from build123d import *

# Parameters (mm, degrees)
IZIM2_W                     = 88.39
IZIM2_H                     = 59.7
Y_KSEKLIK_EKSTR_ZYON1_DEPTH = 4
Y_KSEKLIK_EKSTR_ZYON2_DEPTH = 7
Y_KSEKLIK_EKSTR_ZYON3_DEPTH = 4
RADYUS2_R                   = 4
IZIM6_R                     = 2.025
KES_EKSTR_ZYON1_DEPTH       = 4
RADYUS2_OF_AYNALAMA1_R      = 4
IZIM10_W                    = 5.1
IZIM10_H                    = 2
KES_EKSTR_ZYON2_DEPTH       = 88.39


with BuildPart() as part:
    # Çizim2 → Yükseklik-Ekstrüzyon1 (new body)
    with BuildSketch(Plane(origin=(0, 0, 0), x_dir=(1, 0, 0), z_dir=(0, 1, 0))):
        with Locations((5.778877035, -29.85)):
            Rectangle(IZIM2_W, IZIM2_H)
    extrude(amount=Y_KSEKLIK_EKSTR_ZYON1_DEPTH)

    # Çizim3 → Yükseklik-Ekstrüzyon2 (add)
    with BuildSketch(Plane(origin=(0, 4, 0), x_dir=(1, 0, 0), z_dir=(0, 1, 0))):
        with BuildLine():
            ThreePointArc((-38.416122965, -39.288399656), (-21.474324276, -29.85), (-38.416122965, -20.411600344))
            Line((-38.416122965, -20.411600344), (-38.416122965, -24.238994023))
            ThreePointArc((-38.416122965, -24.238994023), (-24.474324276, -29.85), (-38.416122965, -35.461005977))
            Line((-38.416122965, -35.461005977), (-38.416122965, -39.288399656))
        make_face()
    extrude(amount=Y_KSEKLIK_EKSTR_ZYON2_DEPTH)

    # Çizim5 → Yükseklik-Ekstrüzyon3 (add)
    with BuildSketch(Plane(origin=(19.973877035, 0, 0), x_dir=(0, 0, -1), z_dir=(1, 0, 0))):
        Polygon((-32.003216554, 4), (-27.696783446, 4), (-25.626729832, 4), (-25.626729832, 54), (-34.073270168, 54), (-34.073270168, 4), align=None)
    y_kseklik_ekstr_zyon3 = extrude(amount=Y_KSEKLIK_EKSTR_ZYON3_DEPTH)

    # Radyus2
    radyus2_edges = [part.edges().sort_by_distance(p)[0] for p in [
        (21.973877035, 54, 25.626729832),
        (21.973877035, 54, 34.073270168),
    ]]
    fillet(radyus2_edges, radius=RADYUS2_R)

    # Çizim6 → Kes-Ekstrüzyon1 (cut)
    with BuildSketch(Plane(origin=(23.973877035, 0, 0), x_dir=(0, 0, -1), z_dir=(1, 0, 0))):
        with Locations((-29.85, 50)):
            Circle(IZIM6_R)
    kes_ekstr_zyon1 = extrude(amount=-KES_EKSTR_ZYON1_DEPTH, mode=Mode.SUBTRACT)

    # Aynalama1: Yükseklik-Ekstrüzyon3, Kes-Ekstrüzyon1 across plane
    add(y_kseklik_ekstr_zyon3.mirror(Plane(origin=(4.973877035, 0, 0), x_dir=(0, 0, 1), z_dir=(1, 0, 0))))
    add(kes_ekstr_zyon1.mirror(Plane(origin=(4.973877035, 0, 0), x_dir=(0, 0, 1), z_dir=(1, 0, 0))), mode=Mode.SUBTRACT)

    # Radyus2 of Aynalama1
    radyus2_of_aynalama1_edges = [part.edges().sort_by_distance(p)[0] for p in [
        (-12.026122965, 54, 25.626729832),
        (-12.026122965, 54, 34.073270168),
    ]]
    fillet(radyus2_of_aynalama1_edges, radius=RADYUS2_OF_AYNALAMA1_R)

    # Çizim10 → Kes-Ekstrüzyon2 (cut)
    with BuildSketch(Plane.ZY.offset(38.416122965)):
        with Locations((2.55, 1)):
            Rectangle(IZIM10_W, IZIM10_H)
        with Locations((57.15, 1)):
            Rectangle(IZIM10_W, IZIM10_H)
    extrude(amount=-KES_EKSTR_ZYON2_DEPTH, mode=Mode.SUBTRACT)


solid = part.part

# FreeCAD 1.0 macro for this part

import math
import FreeCAD as App
import Part
import Sketcher

V = App.Vector


def edges_at(feature, points):
    """Names of the edges that pass closest to the given points."""
    edges = feature.Shape.Edges
    near = lambda p: min(range(len(edges)), key=lambda i: edges[i].distToShape(Part.Vertex(*p))[0])
    return sorted({f"Edge{near(p) + 1}" for p in points})


def add_polygon(sketch, points):
    """Adds a closed chain of lines whose ends are joined by coincident constraints."""
    first, n = sketch.GeometryCount, len(points)
    for a, b in zip(points, points[1:] + points[:1]):
        sketch.addGeometry(Part.LineSegment(App.Vector(*a, 0), App.Vector(*b, 0)), False)
    for i in range(n):
        sketch.addConstraint(Sketcher.Constraint("Coincident", first + i, 2, first + (i + 1) % n, 1))

doc = App.newDocument("Part")
body = doc.addObject("PartDesign::Body", "Body")

# Sketch on XZ plane
sketch1 = doc.addObject("Sketcher::SketchObject", "Sketch")
body.addObject(sketch1)
sketch1.AttachmentSupport = (doc.XZ_Plane, [""])
sketch1.MapMode = "FlatFace"
add_polygon(sketch1, [(-38, 0), (-38, 60), (50, 60), (50, 0)])  # lines 0-3
sketch1.addConstraint(Sketcher.Constraint("Vertical", 0))
sketch1.addConstraint(Sketcher.Constraint("Horizontal", 1))
sketch1.addConstraint(Sketcher.Constraint("Vertical", 2))
sketch1.addConstraint(Sketcher.Constraint("Horizontal", 3))
sketch1.addConstraint(Sketcher.Constraint("PointOnObject", 2, 2, -1))
sketch1.addConstraint(Sketcher.Constraint("DistanceY", 0, 1, 0, 2, 59.7))
sketch1.addConstraint(Sketcher.Constraint("DistanceX", 1, 1, 1, 2, 88.39))
sketch1.addConstraint(Sketcher.Constraint("DistanceX", 0, 2, -1, 1, 38.416123))
pad1 = doc.addObject("PartDesign::Pad", "Pad")
body.addObject(pad1)
pad1.Profile = sketch1
pad1.Length = 4
pad1.Reversed = True

# Sketch on XZ plane
sketch2 = doc.addObject("Sketcher::SketchObject", "Sketch001")
body.addObject(sketch2)
sketch2.AttachmentSupport = (doc.XZ_Plane, [""])
sketch2.MapMode = "FlatFace"
sketch2.AttachmentOffset = App.Placement(V(0, 0, -4), App.Rotation())
sketch2.addGeometry(Part.ArcOfCircle(Part.Circle(V(-32.6, 29.9, 0), V(0, 0, 1), 11.1), math.radians(-122), math.radians(122)), False)
sketch2.addGeometry(Part.LineSegment(V(-38.4, 20.4, 0), V(-38.4, 24.2, 0)), False)
sketch2.addGeometry(Part.ArcOfCircle(Part.Circle(V(-32.6, 29.9, 0), V(0, 0, 1), 8.1), math.radians(-136), math.radians(136)), False)
sketch2.addGeometry(Part.LineSegment(V(-38.4, 35.5, 0), V(-38.4, 39.3, 0)), False)
sketch2.addConstraint(Sketcher.Constraint("Coincident", 0, 1, 1, 1))
sketch2.addConstraint(Sketcher.Constraint("Coincident", 1, 2, 2, 1))
sketch2.addConstraint(Sketcher.Constraint("Coincident", 2, 2, 3, 1))
sketch2.addConstraint(Sketcher.Constraint("Coincident", 3, 2, 0, 2))
sketch2.addConstraint(Sketcher.Constraint("Vertical", 1))
sketch2.addConstraint(Sketcher.Constraint("Vertical", 3))
sketch2.addConstraint(Sketcher.Constraint("Coincident", 2, 3, 0, 3))
sketch2.addConstraint(Sketcher.Constraint("Vertical", 1, 2, 2, 2))
sketch2.addConstraint(Sketcher.Constraint("Radius", 0, 11.1))
sketch2.addConstraint(Sketcher.Constraint("Radius", 2, 8.1))
sketch2.addConstraint(Sketcher.Constraint("DistanceY", -1, 1, 0, 3, 29.85))
sketch2.addConstraint(Sketcher.Constraint("DistanceY", -1, 1, 0, 1, 20.4116))
sketch2.addConstraint(Sketcher.Constraint("DistanceX", 0, 3, -1, 1, 32.574324))
pad2 = doc.addObject("PartDesign::Pad", "Pad001")
body.addObject(pad2)
pad2.Profile = sketch2
pad2.Length = 7
pad2.Reversed = True

# Sketch on YZ plane
sketch3 = doc.addObject("Sketcher::SketchObject", "Sketch002")
body.addObject(sketch3)
sketch3.AttachmentSupport = (doc.YZ_Plane, [""])
sketch3.MapMode = "FlatFace"
sketch3.AttachmentOffset = App.Placement(V(0, 0, 19.973877), App.Rotation())
add_polygon(sketch3, [(4, 26), (54, 26), (54, 34), (4, 34)])  # lines 0-3
sketch3.addConstraint(Sketcher.Constraint("Horizontal", 0))
sketch3.addConstraint(Sketcher.Constraint("Vertical", 1))
sketch3.addConstraint(Sketcher.Constraint("Horizontal", 2))
sketch3.addConstraint(Sketcher.Constraint("Vertical", 3))
sketch3.addConstraint(Sketcher.Constraint("DistanceX", 0, 1, 0, 2, 50.0))
sketch3.addConstraint(Sketcher.Constraint("DistanceX", -1, 1, 0, 2, 54.0))
sketch3.addConstraint(Sketcher.Constraint("DistanceY", 1, 1, 1, 2, 8.44654))
sketch3.addConstraint(Sketcher.Constraint("DistanceY", -1, 1, 0, 2, 25.62673))
pad3 = doc.addObject("PartDesign::Pad", "Pad002")
body.addObject(pad3)
pad3.Profile = sketch3
pad3.Length = 4
doc.recompute()

fillet = doc.addObject("PartDesign::Fillet", "Fillet")
body.addObject(fillet)
fillet.Base = (pad3, edges_at(pad3, [(21.974, 54, 25.627), (21.974, 54, 34.073)]))
fillet.Radius = 4

# Sketch on YZ plane
sketch4 = doc.addObject("Sketcher::SketchObject", "Sketch003")
body.addObject(sketch4)
sketch4.AttachmentSupport = (doc.YZ_Plane, [""])
sketch4.MapMode = "FlatFace"
sketch4.AttachmentOffset = App.Placement(V(0, 0, 23.973877), App.Rotation())
sketch4.addGeometry(Part.Circle(V(50, 29.9, 0), V(0, 0, 1), 2), False)
sketch4.addConstraint(Sketcher.Constraint("Diameter", 0, 4.05))
sketch4.addConstraint(Sketcher.Constraint("DistanceX", -1, 1, 0, 3, 50.0))
sketch4.addConstraint(Sketcher.Constraint("DistanceY", -1, 1, 0, 3, 29.85))
pocket1 = doc.addObject("PartDesign::Pocket", "Pocket")
body.addObject(pocket1)
pocket1.Profile = sketch4
pocket1.Length = 4
doc.recompute()

datumplane = doc.addObject("PartDesign::Plane", "DatumPlane")
body.addObject(datumplane)
datumplane.AttachmentSupport = (doc.YZ_Plane, [""])
datumplane.MapMode = "FlatFace"
datumplane.AttachmentOffset = App.Placement(V(0, 0, 4.973877), App.Rotation())
mirrored = doc.addObject("PartDesign::Mirrored", "Mirrored")
body.addObject(mirrored)
mirrored.Originals = [pad3, pocket1]
mirrored.MirrorPlane = (datumplane, [""])
body.Tip = mirrored
doc.recompute()

fillet2 = doc.addObject("PartDesign::Fillet", "Fillet001")
body.addObject(fillet2)
fillet2.Base = (mirrored, edges_at(mirrored, [(-12.026, 54, 25.627), (-12.026, 54, 34.073)]))
fillet2.Radius = 4

# Sketch on YZ plane
sketch5 = doc.addObject("Sketcher::SketchObject", "Sketch004")
body.addObject(sketch5)
sketch5.AttachmentSupport = (doc.YZ_Plane, [""])
sketch5.MapMode = "FlatFace"
sketch5.AttachmentOffset = App.Placement(V(0, 0, -38.416123), App.Rotation())
add_polygon(sketch5, [(2, 0), (0, 0), (0, 5.1), (2, 5.1)])  # lines 0-3
add_polygon(sketch5, [(2, 54.6), (0, 54.6), (0, 59.7), (2, 59.7)])  # lines 4-7
sketch5.addConstraint(Sketcher.Constraint("Horizontal", 0))
sketch5.addConstraint(Sketcher.Constraint("Vertical", 1))
sketch5.addConstraint(Sketcher.Constraint("Horizontal", 2))
sketch5.addConstraint(Sketcher.Constraint("Vertical", 3))
sketch5.addConstraint(Sketcher.Constraint("Horizontal", 4))
sketch5.addConstraint(Sketcher.Constraint("Vertical", 5))
sketch5.addConstraint(Sketcher.Constraint("Horizontal", 6))
sketch5.addConstraint(Sketcher.Constraint("Vertical", 7))
sketch5.addConstraint(Sketcher.Constraint("Coincident", 0, 2, -1, 1))
sketch5.addConstraint(Sketcher.Constraint("PointOnObject", 4, 2, -2))
sketch5.addConstraint(Sketcher.Constraint("Vertical", 3, 2, 6, 2))
sketch5.addConstraint(Sketcher.Constraint("Equal", 3, 5))
sketch5.addConstraint(Sketcher.Constraint("DistanceX", 0, 2, 0, 1, 2.0))
sketch5.addConstraint(Sketcher.Constraint("DistanceY", 1, 1, 1, 2, 5.1))
sketch5.addConstraint(Sketcher.Constraint("DistanceY", -1, 1, 4, 2, 54.6))
pocket2 = doc.addObject("PartDesign::Pocket", "Pocket001")
body.addObject(pocket2)
pocket2.Profile = sketch5
pocket2.Length = 88.39
pocket2.Reversed = True

doc.recompute()
